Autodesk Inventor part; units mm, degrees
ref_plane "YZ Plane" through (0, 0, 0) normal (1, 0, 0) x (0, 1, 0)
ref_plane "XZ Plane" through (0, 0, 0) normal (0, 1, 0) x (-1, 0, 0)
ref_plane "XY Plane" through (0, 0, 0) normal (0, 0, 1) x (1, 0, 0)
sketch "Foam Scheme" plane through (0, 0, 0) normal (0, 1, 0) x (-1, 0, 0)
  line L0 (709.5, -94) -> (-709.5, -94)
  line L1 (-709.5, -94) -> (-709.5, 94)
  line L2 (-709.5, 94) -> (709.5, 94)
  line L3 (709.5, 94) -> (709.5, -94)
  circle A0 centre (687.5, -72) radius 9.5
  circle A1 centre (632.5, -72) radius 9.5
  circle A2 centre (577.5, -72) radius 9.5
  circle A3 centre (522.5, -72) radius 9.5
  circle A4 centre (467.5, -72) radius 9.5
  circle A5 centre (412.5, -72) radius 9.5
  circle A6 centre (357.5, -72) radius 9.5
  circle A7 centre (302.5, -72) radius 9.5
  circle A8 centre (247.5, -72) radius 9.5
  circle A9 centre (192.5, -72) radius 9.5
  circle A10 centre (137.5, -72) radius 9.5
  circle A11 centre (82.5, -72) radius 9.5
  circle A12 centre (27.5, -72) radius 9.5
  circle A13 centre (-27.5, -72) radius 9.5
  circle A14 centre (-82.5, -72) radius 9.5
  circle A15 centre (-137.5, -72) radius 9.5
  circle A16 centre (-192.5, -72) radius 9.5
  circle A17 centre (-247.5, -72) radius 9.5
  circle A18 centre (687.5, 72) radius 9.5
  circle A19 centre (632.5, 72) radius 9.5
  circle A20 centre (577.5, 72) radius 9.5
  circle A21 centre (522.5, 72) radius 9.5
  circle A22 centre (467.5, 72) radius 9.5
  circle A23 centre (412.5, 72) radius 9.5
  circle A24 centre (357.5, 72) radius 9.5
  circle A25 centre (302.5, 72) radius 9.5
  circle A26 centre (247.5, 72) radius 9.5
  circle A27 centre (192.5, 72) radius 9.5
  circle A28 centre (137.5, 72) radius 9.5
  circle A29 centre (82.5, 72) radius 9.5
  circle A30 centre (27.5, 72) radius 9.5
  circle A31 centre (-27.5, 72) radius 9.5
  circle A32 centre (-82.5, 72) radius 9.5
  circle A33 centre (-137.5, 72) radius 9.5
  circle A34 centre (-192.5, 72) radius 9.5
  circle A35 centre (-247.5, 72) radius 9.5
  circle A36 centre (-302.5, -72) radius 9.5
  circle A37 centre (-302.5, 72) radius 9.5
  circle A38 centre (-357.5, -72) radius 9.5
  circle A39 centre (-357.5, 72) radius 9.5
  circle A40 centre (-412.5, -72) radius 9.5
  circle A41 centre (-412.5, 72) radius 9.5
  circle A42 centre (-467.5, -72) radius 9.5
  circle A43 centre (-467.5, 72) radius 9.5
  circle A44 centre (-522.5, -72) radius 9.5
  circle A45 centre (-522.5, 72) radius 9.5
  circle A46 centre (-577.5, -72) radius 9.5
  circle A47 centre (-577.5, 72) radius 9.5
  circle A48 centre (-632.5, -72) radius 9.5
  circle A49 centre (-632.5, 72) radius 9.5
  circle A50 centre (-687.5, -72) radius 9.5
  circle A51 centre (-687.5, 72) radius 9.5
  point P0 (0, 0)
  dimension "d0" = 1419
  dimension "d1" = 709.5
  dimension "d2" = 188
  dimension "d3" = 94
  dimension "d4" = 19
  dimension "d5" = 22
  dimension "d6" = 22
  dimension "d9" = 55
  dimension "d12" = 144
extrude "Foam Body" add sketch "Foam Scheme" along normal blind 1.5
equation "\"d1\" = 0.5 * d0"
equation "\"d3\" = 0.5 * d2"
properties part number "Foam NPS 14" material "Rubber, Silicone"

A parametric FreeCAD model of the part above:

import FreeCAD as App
import Part
import Sketcher

doc = App.newDocument("Part")
body = doc.addObject("PartDesign::Body", "Body")

# Sketch on XZ plane
sketch1 = doc.addObject("Sketcher::SketchObject", "Sketch")
body.addObject(sketch1)
sketch1.AttachmentSupport = (doc.XZ_Plane, [""])
sketch1.MapMode = "FlatFace"
sketch1.addGeometry([
    Part.LineSegment(App.Vector(710, -94, 0), App.Vector(-710, -94, 0)),  # 0
    Part.LineSegment(App.Vector(-710, -94, 0), App.Vector(-710, 94, 0)),  # 1
    Part.LineSegment(App.Vector(-710, 94, 0), App.Vector(710, 94, 0)),  # 2
    Part.LineSegment(App.Vector(710, 94, 0), App.Vector(710, -94, 0)),  # 3
    Part.Circle(App.Vector(688, -72, 0), App.Vector(0, 0, 1), 10),  # 4
    Part.Circle(App.Vector(632, -72, 0), App.Vector(0, 0, 1), 10),  # 5
    Part.Circle(App.Vector(578, -72, 0), App.Vector(0, 0, 1), 10),  # 6
    Part.Circle(App.Vector(522, -72, 0), App.Vector(0, 0, 1), 10),  # 7
    Part.Circle(App.Vector(468, -72, 0), App.Vector(0, 0, 1), 10),  # 8
    Part.Circle(App.Vector(412, -72, 0), App.Vector(0, 0, 1), 10),  # 9
    Part.Circle(App.Vector(358, -72, 0), App.Vector(0, 0, 1), 10),  # 10
    Part.Circle(App.Vector(302, -72, 0), App.Vector(0, 0, 1), 10),  # 11
    Part.Circle(App.Vector(248, -72, 0), App.Vector(0, 0, 1), 10),  # 12
    Part.Circle(App.Vector(192, -72, 0), App.Vector(0, 0, 1), 10),  # 13
    Part.Circle(App.Vector(138, -72, 0), App.Vector(0, 0, 1), 10),  # 14
    Part.Circle(App.Vector(82, -72, 0), App.Vector(0, 0, 1), 10),  # 15
    Part.Circle(App.Vector(28, -72, 0), App.Vector(0, 0, 1), 10),  # 16
    Part.Circle(App.Vector(-28, -72, 0), App.Vector(0, 0, 1), 10),  # 17
    Part.Circle(App.Vector(-82, -72, 0), App.Vector(0, 0, 1), 10),  # 18
    Part.Circle(App.Vector(-138, -72, 0), App.Vector(0, 0, 1), 10),  # 19
    Part.Circle(App.Vector(-192, -72, 0), App.Vector(0, 0, 1), 10),  # 20
    Part.Circle(App.Vector(-248, -72, 0), App.Vector(0, 0, 1), 10),  # 21
    Part.Circle(App.Vector(-302, -72, 0), App.Vector(0, 0, 1), 10),  # 22
    Part.Circle(App.Vector(-358, -72, 0), App.Vector(0, 0, 1), 10),  # 23
    Part.Circle(App.Vector(-412, -72, 0), App.Vector(0, 0, 1), 10),  # 24
    Part.Circle(App.Vector(-468, -72, 0), App.Vector(0, 0, 1), 10),  # 25
    Part.Circle(App.Vector(-522, -72, 0), App.Vector(0, 0, 1), 10),  # 26
    Part.Circle(App.Vector(-578, -72, 0), App.Vector(0, 0, 1), 10),  # 27
    Part.Circle(App.Vector(-632, -72, 0), App.Vector(0, 0, 1), 10),  # 28
    Part.Circle(App.Vector(-688, -72, 0), App.Vector(0, 0, 1), 10),  # 29
    Part.Circle(App.Vector(688, 72, 0), App.Vector(0, 0, 1), 10),  # 30
    Part.Circle(App.Vector(632, 72, 0), App.Vector(0, 0, 1), 10),  # 31
    Part.Circle(App.Vector(578, 72, 0), App.Vector(0, 0, 1), 10),  # 32
    Part.Circle(App.Vector(522, 72, 0), App.Vector(0, 0, 1), 10),  # 33
    Part.Circle(App.Vector(468, 72, 0), App.Vector(0, 0, 1), 10),  # 34
    Part.Circle(App.Vector(412, 72, 0), App.Vector(0, 0, 1), 10),  # 35
    Part.Circle(App.Vector(358, 72, 0), App.Vector(0, 0, 1), 10),  # 36
    Part.Circle(App.Vector(302, 72, 0), App.Vector(0, 0, 1), 10),  # 37
    Part.Circle(App.Vector(248, 72, 0), App.Vector(0, 0, 1), 10),  # 38
    Part.Circle(App.Vector(192, 72, 0), App.Vector(0, 0, 1), 10),  # 39
    Part.Circle(App.Vector(138, 72, 0), App.Vector(0, 0, 1), 10),  # 40
    Part.Circle(App.Vector(82, 72, 0), App.Vector(0, 0, 1), 10),  # 41
    Part.Circle(App.Vector(28, 72, 0), App.Vector(0, 0, 1), 10),  # 42
    Part.Circle(App.Vector(-28, 72, 0), App.Vector(0, 0, 1), 10),  # 43
    Part.Circle(App.Vector(-82, 72, 0), App.Vector(0, 0, 1), 10),  # 44
    Part.Circle(App.Vector(-138, 72, 0), App.Vector(0, 0, 1), 10),  # 45
    Part.Circle(App.Vector(-192, 72, 0), App.Vector(0, 0, 1), 10),  # 46
    Part.Circle(App.Vector(-248, 72, 0), App.Vector(0, 0, 1), 10),  # 47
    Part.Circle(App.Vector(-302, 72, 0), App.Vector(0, 0, 1), 10),  # 48
    Part.Circle(App.Vector(-358, 72, 0), App.Vector(0, 0, 1), 10),  # 49
    Part.Circle(App.Vector(-412, 72, 0), App.Vector(0, 0, 1), 10),  # 50
    Part.Circle(App.Vector(-468, 72, 0), App.Vector(0, 0, 1), 10),  # 51
    Part.Circle(App.Vector(-522, 72, 0), App.Vector(0, 0, 1), 10),  # 52
    Part.Circle(App.Vector(-578, 72, 0), App.Vector(0, 0, 1), 10),  # 53
    Part.Circle(App.Vector(-632, 72, 0), App.Vector(0, 0, 1), 10),  # 54
    Part.Circle(App.Vector(-688, 72, 0), App.Vector(0, 0, 1), 10),  # 55
], False)
sketch1.addConstraint([
    Sketcher.Constraint("Coincident", 0, 2, 1, 1),
    Sketcher.Constraint("Coincident", 1, 2, 2, 1),
    Sketcher.Constraint("Coincident", 2, 2, 3, 1),
    Sketcher.Constraint("Coincident", 3, 2, 0, 1),
    Sketcher.Constraint("Horizontal", 0),
    Sketcher.Constraint("Vertical", 1),
    Sketcher.Constraint("Horizontal", 2),
    Sketcher.Constraint("Vertical", 3),
    Sketcher.Constraint("Equal", 4, 5),
    Sketcher.Constraint("Equal", 5, 6),
    Sketcher.Constraint("Equal", 6, 7),
    Sketcher.Constraint("Equal", 7, 8),
    Sketcher.Constraint("Equal", 8, 9),
    Sketcher.Constraint("Equal", 9, 10),
    Sketcher.Constraint("Equal", 10, 11),
    Sketcher.Constraint("Equal", 11, 12),
    Sketcher.Constraint("Equal", 12, 13),
    Sketcher.Constraint("Equal", 13, 14),
    Sketcher.Constraint("Equal", 14, 15),
    Sketcher.Constraint("Equal", 15, 16),
    Sketcher.Constraint("Equal", 16, 17),
    Sketcher.Constraint("Equal", 17, 18),
    Sketcher.Constraint("Equal", 18, 19),
    Sketcher.Constraint("Equal", 19, 20),
    Sketcher.Constraint("Equal", 20, 21),
    Sketcher.Constraint("Equal", 21, 22),
    Sketcher.Constraint("Equal", 22, 23),
    Sketcher.Constraint("Equal", 23, 24),
    Sketcher.Constraint("Equal", 24, 25),
    Sketcher.Constraint("Equal", 25, 26),
    Sketcher.Constraint("Equal", 26, 27),
    Sketcher.Constraint("Equal", 27, 28),
    Sketcher.Constraint("Equal", 28, 29),
    Sketcher.Constraint("Equal", 29, 30),
    Sketcher.Constraint("Equal", 30, 31),
    Sketcher.Constraint("Equal", 31, 32),
    Sketcher.Constraint("Equal", 32, 33),
    Sketcher.Constraint("Equal", 33, 34),
    Sketcher.Constraint("Equal", 34, 35),
    Sketcher.Constraint("Equal", 35, 36),
    Sketcher.Constraint("Equal", 36, 37),
    Sketcher.Constraint("Equal", 37, 38),
    Sketcher.Constraint("Equal", 38, 39),
    Sketcher.Constraint("Equal", 39, 40),
    Sketcher.Constraint("Equal", 40, 41),
    Sketcher.Constraint("Equal", 41, 42),
    Sketcher.Constraint("Equal", 42, 43),
    Sketcher.Constraint("Equal", 43, 44),
    Sketcher.Constraint("Equal", 44, 45),
    Sketcher.Constraint("Equal", 45, 46),
    Sketcher.Constraint("Equal", 46, 47),
    Sketcher.Constraint("Equal", 47, 48),
    Sketcher.Constraint("Equal", 48, 49),
    Sketcher.Constraint("Equal", 49, 50),
    Sketcher.Constraint("Equal", 50, 51),
    Sketcher.Constraint("Equal", 51, 52),
    Sketcher.Constraint("Equal", 52, 53),
    Sketcher.Constraint("Equal", 53, 54),
    Sketcher.Constraint("Equal", 54, 55),
    Sketcher.Constraint("Symmetric", 29, 3, 30, 3, -1, 1),
    Sketcher.Constraint("Symmetric", 28, 3, 31, 3, -1, 1),
    Sketcher.Constraint("Symmetric", 27, 3, 32, 3, -1, 1),
    Sketcher.Constraint("Symmetric", 26, 3, 33, 3, -1, 1),
    Sketcher.Constraint("Symmetric", 25, 3, 34, 3, -1, 1),
    Sketcher.Constraint("Symmetric", 24, 3, 35, 3, -1, 1),
    Sketcher.Constraint("Symmetric", 23, 3, 36, 3, -1, 1),
    Sketcher.Constraint("Symmetric", 22, 3, 37, 3, -1, 1),
    Sketcher.Constraint("Symmetric", 21, 3, 38, 3, -1, 1),
    Sketcher.Constraint("Symmetric", 20, 3, 39, 3, -1, 1),
    Sketcher.Constraint("Symmetric", 19, 3, 40, 3, -1, 1),
    Sketcher.Constraint("Symmetric", 18, 3, 41, 3, -1, 1),
    Sketcher.Constraint("Symmetric", 17, 3, 42, 3, -1, 1),
    Sketcher.Constraint("Symmetric", 16, 3, 43, 3, -1, 1),
    Sketcher.Constraint("Symmetric", 15, 3, 44, 3, -1, 1),
    Sketcher.Constraint("Symmetric", 14, 3, 45, 3, -1, 1),
    Sketcher.Constraint("Symmetric", 13, 3, 46, 3, -1, 1),
    Sketcher.Constraint("Symmetric", 12, 3, 47, 3, -1, 1),
    Sketcher.Constraint("Symmetric", 11, 3, 48, 3, -1, 1),
    Sketcher.Constraint("Symmetric", 10, 3, 49, 3, -1, 1),
    Sketcher.Constraint("Symmetric", 9, 3, 50, 3, -1, 1),
    Sketcher.Constraint("Symmetric", 8, 3, 51, 3, -1, 1),
    Sketcher.Constraint("Symmetric", 7, 3, 52, 3, -1, 1),
    Sketcher.Constraint("Symmetric", 6, 3, 53, 3, -1, 1),
    Sketcher.Constraint("Symmetric", 5, 3, 54, 3, -1, 1),
    Sketcher.Constraint("Symmetric", 4, 3, 55, 3, -1, 1),
    Sketcher.Constraint("Symmetric", 0, 2, 2, 2, -1, 1),
    Sketcher.Constraint("Symmetric", 16, 3, 17, 3, -2),
    Sketcher.Constraint("Symmetric", 15, 3, 18, 3, -2),
    Sketcher.Constraint("Symmetric", 14, 3, 19, 3, -2),
    Sketcher.Constraint("Symmetric", 13, 3, 20, 3, -2),
    Sketcher.Constraint("Symmetric", 12, 3, 21, 3, -2),
    Sketcher.Constraint("Symmetric", 11, 3, 22, 3, -2),
    Sketcher.Constraint("Symmetric", 10, 3, 23, 3, -2),
    Sketcher.Constraint("Symmetric", 9, 3, 24, 3, -2),
    Sketcher.Constraint("Symmetric", 8, 3, 25, 3, -2),
    Sketcher.Constraint("Symmetric", 7, 3, 26, 3, -2),
    Sketcher.Constraint("Symmetric", 6, 3, 27, 3, -2),
    Sketcher.Constraint("Symmetric", 5, 3, 28, 3, -2),
    Sketcher.Constraint("Symmetric", 4, 3, 29, 3, -2),
    Sketcher.Constraint("Horizontal", 4, 3, 5, 3),
    Sketcher.Constraint("Horizontal", 5, 3, 6, 3),
    Sketcher.Constraint("Horizontal", 6, 3, 7, 3),
    Sketcher.Constraint("Horizontal", 7, 3, 8, 3),
    Sketcher.Constraint("Horizontal", 8, 3, 9, 3),
    Sketcher.Constraint("Horizontal", 9, 3, 10, 3),
    Sketcher.Constraint("Horizontal", 10, 3, 11, 3),
    Sketcher.Constraint("Horizontal", 11, 3, 12, 3),
    Sketcher.Constraint("Horizontal", 12, 3, 13, 3),
    Sketcher.Constraint("Horizontal", 13, 3, 14, 3),
    Sketcher.Constraint("Horizontal", 14, 3, 15, 3),
    Sketcher.Constraint("Horizontal", 15, 3, 16, 3),
    Sketcher.Constraint("Diameter", 4, 19.0),
    Sketcher.Constraint("DistanceX", 0, 2, 0, 1, 1419.0),
    Sketcher.Constraint("DistanceY", 1, 1, 1, 2, 188.0),
    Sketcher.Constraint("DistanceX", 5, 3, 4, 3, 55.0),
    Sketcher.Constraint("DistanceX", 6, 3, 5, 3, 55.0),
    Sketcher.Constraint("DistanceX", 7, 3, 6, 3, 55.0),
    Sketcher.Constraint("DistanceX", 8, 3, 7, 3, 55.0),
    Sketcher.Constraint("DistanceX", 9, 3, 8, 3, 55.0),
    Sketcher.Constraint("DistanceX", 10, 3, 9, 3, 55.0),
    Sketcher.Constraint("DistanceX", 11, 3, 10, 3, 55.0),
    Sketcher.Constraint("DistanceX", 12, 3, 11, 3, 55.0),
    Sketcher.Constraint("DistanceX", 13, 3, 12, 3, 55.0),
    Sketcher.Constraint("DistanceX", 14, 3, 13, 3, 55.0),
    Sketcher.Constraint("DistanceX", 15, 3, 14, 3, 55.0),
    Sketcher.Constraint("DistanceX", 16, 3, 15, 3, 55.0),
    Sketcher.Constraint("DistanceX", 17, 3, 16, 3, 55.0),
    Sketcher.Constraint("DistanceY", 4, 3, 30, 3, 144.0),
])
pad1 = doc.addObject("PartDesign::Pad", "Pad")
body.addObject(pad1)
pad1.Profile = sketch1
pad1.Length = 1.5
pad1.Reversed = True

doc.recompute()
